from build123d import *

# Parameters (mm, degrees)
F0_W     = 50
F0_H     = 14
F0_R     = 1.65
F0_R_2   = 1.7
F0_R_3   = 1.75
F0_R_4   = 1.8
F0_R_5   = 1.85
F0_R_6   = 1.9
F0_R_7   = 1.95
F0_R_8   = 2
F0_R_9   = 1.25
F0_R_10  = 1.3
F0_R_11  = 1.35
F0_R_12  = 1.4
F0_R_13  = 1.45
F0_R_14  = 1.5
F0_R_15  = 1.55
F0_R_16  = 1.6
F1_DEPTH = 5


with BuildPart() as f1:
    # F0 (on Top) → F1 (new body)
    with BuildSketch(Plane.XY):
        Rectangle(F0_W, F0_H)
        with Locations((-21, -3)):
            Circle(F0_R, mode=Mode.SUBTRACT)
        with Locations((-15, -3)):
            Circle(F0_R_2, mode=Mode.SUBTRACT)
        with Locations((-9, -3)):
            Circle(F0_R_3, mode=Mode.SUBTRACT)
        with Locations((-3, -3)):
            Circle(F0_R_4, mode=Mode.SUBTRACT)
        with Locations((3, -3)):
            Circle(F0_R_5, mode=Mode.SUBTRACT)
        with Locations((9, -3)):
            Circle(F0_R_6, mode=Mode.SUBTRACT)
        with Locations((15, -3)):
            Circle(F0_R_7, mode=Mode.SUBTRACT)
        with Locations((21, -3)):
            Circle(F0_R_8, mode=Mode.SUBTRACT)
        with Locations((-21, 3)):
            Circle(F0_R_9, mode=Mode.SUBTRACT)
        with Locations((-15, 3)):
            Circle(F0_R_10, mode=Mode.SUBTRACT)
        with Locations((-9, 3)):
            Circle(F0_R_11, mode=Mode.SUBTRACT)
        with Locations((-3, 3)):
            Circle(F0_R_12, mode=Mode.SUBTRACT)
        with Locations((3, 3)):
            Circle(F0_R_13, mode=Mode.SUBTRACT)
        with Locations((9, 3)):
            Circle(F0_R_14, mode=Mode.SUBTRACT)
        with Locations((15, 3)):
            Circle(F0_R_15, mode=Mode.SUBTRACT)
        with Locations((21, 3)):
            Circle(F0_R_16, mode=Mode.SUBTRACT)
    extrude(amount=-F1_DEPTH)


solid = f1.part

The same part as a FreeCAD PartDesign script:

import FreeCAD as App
import Part
import Sketcher

V = App.Vector
Q = App.Units.Quantity


def add_polygon(sketch, points):
    """Adds a closed chain of lines whose ends are joined by coincident constraints."""
    first, n = sketch.GeometryCount, len(points)
    for a, b in zip(points, points[1:] + points[:1]):
        sketch.addGeometry(Part.LineSegment(App.Vector(*a, 0), App.Vector(*b, 0)), False)
    for i in range(n):
        sketch.addConstraint(Sketcher.Constraint("Coincident", first + i, 2, first + (i + 1) % n, 1))

doc = App.newDocument("Part")
body = doc.addObject("PartDesign::Body", "Body")

sketch1 = body.newObject("Sketcher::SketchObject", "Sketch")
sketch1.AttachmentSupport = (doc.getObject("XY_Plane"), [""])
sketch1.MapMode = "FlatFace"
add_polygon(sketch1, [(-25, 7), (-25, -7), (25, -7), (25, 7)])
sketch1.addGeometry(Part.Circle(V(-21, -3, 0), V(0, 0, 1), 1.65), False)
sketch1.addGeometry(Part.Circle(V(-15, -3, 0), V(0, 0, 1), 1.7), False)
sketch1.addGeometry(Part.Circle(V(-9, -3, 0), V(0, 0, 1), 1.75), False)
sketch1.addGeometry(Part.Circle(V(-3, -3, 0), V(0, 0, 1), 1.8), False)
sketch1.addGeometry(Part.Circle(V(3, -3, 0), V(0, 0, 1), 1.85), False)
sketch1.addGeometry(Part.Circle(V(9, -3, 0), V(0, 0, 1), 1.9), False)
sketch1.addGeometry(Part.Circle(V(15, -3, 0), V(0, 0, 1), 1.95), False)
sketch1.addGeometry(Part.Circle(V(21, -3, 0), V(0, 0, 1), 2), False)
sketch1.addGeometry(Part.Circle(V(-21, 3, 0), V(0, 0, 1), 1.25), False)
sketch1.addGeometry(Part.Circle(V(-15, 3, 0), V(0, 0, 1), 1.3), False)
sketch1.addGeometry(Part.Circle(V(-9, 3, 0), V(0, 0, 1), 1.35), False)
sketch1.addGeometry(Part.Circle(V(-3, 3, 0), V(0, 0, 1), 1.4), False)
sketch1.addGeometry(Part.Circle(V(3, 3, 0), V(0, 0, 1), 1.45), False)
sketch1.addGeometry(Part.Circle(V(9, 3, 0), V(0, 0, 1), 1.5), False)
sketch1.addGeometry(Part.Circle(V(15, 3, 0), V(0, 0, 1), 1.55), False)
sketch1.addGeometry(Part.Circle(V(21, 3, 0), V(0, 0, 1), 1.6), False)
sketch1.addConstraint([
    Sketcher.Constraint("Vertical", 0),
    Sketcher.Constraint("Horizontal", 1),
    Sketcher.Constraint("Vertical", 2),
    Sketcher.Constraint("Horizontal", 3),
    Sketcher.Constraint("Symmetric", 11, 3, 12, 3, -1, 1),
    Sketcher.Constraint("Symmetric", 10, 3, 13, 3, -1, 1),
    Sketcher.Constraint("Symmetric", 9, 3, 14, 3, -1, 1),
    Sketcher.Constraint("Symmetric", 8, 3, 15, 3, -1, 1),
    Sketcher.Constraint("Symmetric", 7, 3, 16, 3, -1, 1),
    Sketcher.Constraint("Symmetric", 6, 3, 17, 3, -1, 1),
    Sketcher.Constraint("Symmetric", 5, 3, 18, 3, -1, 1),
    Sketcher.Constraint("Symmetric", 4, 3, 19, 3, -1, 1),
    Sketcher.Constraint("Symmetric", 0, 2, 2, 2, -1, 1),
    Sketcher.Constraint("Symmetric", 7, 3, 8, 3, -2),
    Sketcher.Constraint("Symmetric", 6, 3, 9, 3, -2),
    Sketcher.Constraint("Symmetric", 5, 3, 10, 3, -2),
    Sketcher.Constraint("Symmetric", 4, 3, 11, 3, -2),
    Sketcher.Constraint("Horizontal", 4, 3, 5, 3),
    Sketcher.Constraint("Horizontal", 5, 3, 6, 3),
    Sketcher.Constraint("Horizontal", 6, 3, 7, 3),
    Sketcher.Constraint("Diameter", 11, Q("4 mm")),
    Sketcher.Constraint("Diameter", 17, Q("3 mm")),
    Sketcher.Constraint("Diameter", 4, Q("3.3 mm")),
    Sketcher.Constraint("Diameter", 5, Q("3.4 mm")),
    Sketcher.Constraint("Diameter", 6, Q("3.5 mm")),
    Sketcher.Constraint("Diameter", 7, Q("3.6 mm")),
    Sketcher.Constraint("Diameter", 8, Q("3.7 mm")),
    Sketcher.Constraint("Diameter", 9, Q("3.8 mm")),
    Sketcher.Constraint("Diameter", 10, Q("3.9 mm")),
    Sketcher.Constraint("Diameter", 12, Q("2.5 mm")),
    Sketcher.Constraint("Diameter", 13, Q("2.6 mm")),
    Sketcher.Constraint("Diameter", 14, Q("2.7 mm")),
    Sketcher.Constraint("Diameter", 15, Q("2.8 mm")),
    Sketcher.Constraint("Diameter", 16, Q("2.9 mm")),
    Sketcher.Constraint("Diameter", 18, Q("3.1 mm")),
    Sketcher.Constraint("Diameter", 19, Q("3.2 mm")),
    Sketcher.Constraint("DistanceX", 1, 1, 1, 2, Q("50 mm")),
    Sketcher.Constraint("DistanceY", 0, 2, 0, 1, Q("14 mm")),
    Sketcher.Constraint("DistanceX", 4, 3, -1, 1, Q("21 mm")),
    Sketcher.Constraint("DistanceY", 4, 3, -1, 1, Q("3 mm")),
    Sketcher.Constraint("DistanceX", 5, 3, -1, 1, Q("15 mm")),
    Sketcher.Constraint("DistanceX", 6, 3, -1, 1, Q("9 mm")),
    Sketcher.Constraint("DistanceX", 7, 3, -1, 1, Q("3 mm")),
])
pad1 = body.newObject("PartDesign::Pad", "Pad")
pad1.Profile = sketch1
pad1.Length = 5
pad1.Reversed = True

doc.recompute()
